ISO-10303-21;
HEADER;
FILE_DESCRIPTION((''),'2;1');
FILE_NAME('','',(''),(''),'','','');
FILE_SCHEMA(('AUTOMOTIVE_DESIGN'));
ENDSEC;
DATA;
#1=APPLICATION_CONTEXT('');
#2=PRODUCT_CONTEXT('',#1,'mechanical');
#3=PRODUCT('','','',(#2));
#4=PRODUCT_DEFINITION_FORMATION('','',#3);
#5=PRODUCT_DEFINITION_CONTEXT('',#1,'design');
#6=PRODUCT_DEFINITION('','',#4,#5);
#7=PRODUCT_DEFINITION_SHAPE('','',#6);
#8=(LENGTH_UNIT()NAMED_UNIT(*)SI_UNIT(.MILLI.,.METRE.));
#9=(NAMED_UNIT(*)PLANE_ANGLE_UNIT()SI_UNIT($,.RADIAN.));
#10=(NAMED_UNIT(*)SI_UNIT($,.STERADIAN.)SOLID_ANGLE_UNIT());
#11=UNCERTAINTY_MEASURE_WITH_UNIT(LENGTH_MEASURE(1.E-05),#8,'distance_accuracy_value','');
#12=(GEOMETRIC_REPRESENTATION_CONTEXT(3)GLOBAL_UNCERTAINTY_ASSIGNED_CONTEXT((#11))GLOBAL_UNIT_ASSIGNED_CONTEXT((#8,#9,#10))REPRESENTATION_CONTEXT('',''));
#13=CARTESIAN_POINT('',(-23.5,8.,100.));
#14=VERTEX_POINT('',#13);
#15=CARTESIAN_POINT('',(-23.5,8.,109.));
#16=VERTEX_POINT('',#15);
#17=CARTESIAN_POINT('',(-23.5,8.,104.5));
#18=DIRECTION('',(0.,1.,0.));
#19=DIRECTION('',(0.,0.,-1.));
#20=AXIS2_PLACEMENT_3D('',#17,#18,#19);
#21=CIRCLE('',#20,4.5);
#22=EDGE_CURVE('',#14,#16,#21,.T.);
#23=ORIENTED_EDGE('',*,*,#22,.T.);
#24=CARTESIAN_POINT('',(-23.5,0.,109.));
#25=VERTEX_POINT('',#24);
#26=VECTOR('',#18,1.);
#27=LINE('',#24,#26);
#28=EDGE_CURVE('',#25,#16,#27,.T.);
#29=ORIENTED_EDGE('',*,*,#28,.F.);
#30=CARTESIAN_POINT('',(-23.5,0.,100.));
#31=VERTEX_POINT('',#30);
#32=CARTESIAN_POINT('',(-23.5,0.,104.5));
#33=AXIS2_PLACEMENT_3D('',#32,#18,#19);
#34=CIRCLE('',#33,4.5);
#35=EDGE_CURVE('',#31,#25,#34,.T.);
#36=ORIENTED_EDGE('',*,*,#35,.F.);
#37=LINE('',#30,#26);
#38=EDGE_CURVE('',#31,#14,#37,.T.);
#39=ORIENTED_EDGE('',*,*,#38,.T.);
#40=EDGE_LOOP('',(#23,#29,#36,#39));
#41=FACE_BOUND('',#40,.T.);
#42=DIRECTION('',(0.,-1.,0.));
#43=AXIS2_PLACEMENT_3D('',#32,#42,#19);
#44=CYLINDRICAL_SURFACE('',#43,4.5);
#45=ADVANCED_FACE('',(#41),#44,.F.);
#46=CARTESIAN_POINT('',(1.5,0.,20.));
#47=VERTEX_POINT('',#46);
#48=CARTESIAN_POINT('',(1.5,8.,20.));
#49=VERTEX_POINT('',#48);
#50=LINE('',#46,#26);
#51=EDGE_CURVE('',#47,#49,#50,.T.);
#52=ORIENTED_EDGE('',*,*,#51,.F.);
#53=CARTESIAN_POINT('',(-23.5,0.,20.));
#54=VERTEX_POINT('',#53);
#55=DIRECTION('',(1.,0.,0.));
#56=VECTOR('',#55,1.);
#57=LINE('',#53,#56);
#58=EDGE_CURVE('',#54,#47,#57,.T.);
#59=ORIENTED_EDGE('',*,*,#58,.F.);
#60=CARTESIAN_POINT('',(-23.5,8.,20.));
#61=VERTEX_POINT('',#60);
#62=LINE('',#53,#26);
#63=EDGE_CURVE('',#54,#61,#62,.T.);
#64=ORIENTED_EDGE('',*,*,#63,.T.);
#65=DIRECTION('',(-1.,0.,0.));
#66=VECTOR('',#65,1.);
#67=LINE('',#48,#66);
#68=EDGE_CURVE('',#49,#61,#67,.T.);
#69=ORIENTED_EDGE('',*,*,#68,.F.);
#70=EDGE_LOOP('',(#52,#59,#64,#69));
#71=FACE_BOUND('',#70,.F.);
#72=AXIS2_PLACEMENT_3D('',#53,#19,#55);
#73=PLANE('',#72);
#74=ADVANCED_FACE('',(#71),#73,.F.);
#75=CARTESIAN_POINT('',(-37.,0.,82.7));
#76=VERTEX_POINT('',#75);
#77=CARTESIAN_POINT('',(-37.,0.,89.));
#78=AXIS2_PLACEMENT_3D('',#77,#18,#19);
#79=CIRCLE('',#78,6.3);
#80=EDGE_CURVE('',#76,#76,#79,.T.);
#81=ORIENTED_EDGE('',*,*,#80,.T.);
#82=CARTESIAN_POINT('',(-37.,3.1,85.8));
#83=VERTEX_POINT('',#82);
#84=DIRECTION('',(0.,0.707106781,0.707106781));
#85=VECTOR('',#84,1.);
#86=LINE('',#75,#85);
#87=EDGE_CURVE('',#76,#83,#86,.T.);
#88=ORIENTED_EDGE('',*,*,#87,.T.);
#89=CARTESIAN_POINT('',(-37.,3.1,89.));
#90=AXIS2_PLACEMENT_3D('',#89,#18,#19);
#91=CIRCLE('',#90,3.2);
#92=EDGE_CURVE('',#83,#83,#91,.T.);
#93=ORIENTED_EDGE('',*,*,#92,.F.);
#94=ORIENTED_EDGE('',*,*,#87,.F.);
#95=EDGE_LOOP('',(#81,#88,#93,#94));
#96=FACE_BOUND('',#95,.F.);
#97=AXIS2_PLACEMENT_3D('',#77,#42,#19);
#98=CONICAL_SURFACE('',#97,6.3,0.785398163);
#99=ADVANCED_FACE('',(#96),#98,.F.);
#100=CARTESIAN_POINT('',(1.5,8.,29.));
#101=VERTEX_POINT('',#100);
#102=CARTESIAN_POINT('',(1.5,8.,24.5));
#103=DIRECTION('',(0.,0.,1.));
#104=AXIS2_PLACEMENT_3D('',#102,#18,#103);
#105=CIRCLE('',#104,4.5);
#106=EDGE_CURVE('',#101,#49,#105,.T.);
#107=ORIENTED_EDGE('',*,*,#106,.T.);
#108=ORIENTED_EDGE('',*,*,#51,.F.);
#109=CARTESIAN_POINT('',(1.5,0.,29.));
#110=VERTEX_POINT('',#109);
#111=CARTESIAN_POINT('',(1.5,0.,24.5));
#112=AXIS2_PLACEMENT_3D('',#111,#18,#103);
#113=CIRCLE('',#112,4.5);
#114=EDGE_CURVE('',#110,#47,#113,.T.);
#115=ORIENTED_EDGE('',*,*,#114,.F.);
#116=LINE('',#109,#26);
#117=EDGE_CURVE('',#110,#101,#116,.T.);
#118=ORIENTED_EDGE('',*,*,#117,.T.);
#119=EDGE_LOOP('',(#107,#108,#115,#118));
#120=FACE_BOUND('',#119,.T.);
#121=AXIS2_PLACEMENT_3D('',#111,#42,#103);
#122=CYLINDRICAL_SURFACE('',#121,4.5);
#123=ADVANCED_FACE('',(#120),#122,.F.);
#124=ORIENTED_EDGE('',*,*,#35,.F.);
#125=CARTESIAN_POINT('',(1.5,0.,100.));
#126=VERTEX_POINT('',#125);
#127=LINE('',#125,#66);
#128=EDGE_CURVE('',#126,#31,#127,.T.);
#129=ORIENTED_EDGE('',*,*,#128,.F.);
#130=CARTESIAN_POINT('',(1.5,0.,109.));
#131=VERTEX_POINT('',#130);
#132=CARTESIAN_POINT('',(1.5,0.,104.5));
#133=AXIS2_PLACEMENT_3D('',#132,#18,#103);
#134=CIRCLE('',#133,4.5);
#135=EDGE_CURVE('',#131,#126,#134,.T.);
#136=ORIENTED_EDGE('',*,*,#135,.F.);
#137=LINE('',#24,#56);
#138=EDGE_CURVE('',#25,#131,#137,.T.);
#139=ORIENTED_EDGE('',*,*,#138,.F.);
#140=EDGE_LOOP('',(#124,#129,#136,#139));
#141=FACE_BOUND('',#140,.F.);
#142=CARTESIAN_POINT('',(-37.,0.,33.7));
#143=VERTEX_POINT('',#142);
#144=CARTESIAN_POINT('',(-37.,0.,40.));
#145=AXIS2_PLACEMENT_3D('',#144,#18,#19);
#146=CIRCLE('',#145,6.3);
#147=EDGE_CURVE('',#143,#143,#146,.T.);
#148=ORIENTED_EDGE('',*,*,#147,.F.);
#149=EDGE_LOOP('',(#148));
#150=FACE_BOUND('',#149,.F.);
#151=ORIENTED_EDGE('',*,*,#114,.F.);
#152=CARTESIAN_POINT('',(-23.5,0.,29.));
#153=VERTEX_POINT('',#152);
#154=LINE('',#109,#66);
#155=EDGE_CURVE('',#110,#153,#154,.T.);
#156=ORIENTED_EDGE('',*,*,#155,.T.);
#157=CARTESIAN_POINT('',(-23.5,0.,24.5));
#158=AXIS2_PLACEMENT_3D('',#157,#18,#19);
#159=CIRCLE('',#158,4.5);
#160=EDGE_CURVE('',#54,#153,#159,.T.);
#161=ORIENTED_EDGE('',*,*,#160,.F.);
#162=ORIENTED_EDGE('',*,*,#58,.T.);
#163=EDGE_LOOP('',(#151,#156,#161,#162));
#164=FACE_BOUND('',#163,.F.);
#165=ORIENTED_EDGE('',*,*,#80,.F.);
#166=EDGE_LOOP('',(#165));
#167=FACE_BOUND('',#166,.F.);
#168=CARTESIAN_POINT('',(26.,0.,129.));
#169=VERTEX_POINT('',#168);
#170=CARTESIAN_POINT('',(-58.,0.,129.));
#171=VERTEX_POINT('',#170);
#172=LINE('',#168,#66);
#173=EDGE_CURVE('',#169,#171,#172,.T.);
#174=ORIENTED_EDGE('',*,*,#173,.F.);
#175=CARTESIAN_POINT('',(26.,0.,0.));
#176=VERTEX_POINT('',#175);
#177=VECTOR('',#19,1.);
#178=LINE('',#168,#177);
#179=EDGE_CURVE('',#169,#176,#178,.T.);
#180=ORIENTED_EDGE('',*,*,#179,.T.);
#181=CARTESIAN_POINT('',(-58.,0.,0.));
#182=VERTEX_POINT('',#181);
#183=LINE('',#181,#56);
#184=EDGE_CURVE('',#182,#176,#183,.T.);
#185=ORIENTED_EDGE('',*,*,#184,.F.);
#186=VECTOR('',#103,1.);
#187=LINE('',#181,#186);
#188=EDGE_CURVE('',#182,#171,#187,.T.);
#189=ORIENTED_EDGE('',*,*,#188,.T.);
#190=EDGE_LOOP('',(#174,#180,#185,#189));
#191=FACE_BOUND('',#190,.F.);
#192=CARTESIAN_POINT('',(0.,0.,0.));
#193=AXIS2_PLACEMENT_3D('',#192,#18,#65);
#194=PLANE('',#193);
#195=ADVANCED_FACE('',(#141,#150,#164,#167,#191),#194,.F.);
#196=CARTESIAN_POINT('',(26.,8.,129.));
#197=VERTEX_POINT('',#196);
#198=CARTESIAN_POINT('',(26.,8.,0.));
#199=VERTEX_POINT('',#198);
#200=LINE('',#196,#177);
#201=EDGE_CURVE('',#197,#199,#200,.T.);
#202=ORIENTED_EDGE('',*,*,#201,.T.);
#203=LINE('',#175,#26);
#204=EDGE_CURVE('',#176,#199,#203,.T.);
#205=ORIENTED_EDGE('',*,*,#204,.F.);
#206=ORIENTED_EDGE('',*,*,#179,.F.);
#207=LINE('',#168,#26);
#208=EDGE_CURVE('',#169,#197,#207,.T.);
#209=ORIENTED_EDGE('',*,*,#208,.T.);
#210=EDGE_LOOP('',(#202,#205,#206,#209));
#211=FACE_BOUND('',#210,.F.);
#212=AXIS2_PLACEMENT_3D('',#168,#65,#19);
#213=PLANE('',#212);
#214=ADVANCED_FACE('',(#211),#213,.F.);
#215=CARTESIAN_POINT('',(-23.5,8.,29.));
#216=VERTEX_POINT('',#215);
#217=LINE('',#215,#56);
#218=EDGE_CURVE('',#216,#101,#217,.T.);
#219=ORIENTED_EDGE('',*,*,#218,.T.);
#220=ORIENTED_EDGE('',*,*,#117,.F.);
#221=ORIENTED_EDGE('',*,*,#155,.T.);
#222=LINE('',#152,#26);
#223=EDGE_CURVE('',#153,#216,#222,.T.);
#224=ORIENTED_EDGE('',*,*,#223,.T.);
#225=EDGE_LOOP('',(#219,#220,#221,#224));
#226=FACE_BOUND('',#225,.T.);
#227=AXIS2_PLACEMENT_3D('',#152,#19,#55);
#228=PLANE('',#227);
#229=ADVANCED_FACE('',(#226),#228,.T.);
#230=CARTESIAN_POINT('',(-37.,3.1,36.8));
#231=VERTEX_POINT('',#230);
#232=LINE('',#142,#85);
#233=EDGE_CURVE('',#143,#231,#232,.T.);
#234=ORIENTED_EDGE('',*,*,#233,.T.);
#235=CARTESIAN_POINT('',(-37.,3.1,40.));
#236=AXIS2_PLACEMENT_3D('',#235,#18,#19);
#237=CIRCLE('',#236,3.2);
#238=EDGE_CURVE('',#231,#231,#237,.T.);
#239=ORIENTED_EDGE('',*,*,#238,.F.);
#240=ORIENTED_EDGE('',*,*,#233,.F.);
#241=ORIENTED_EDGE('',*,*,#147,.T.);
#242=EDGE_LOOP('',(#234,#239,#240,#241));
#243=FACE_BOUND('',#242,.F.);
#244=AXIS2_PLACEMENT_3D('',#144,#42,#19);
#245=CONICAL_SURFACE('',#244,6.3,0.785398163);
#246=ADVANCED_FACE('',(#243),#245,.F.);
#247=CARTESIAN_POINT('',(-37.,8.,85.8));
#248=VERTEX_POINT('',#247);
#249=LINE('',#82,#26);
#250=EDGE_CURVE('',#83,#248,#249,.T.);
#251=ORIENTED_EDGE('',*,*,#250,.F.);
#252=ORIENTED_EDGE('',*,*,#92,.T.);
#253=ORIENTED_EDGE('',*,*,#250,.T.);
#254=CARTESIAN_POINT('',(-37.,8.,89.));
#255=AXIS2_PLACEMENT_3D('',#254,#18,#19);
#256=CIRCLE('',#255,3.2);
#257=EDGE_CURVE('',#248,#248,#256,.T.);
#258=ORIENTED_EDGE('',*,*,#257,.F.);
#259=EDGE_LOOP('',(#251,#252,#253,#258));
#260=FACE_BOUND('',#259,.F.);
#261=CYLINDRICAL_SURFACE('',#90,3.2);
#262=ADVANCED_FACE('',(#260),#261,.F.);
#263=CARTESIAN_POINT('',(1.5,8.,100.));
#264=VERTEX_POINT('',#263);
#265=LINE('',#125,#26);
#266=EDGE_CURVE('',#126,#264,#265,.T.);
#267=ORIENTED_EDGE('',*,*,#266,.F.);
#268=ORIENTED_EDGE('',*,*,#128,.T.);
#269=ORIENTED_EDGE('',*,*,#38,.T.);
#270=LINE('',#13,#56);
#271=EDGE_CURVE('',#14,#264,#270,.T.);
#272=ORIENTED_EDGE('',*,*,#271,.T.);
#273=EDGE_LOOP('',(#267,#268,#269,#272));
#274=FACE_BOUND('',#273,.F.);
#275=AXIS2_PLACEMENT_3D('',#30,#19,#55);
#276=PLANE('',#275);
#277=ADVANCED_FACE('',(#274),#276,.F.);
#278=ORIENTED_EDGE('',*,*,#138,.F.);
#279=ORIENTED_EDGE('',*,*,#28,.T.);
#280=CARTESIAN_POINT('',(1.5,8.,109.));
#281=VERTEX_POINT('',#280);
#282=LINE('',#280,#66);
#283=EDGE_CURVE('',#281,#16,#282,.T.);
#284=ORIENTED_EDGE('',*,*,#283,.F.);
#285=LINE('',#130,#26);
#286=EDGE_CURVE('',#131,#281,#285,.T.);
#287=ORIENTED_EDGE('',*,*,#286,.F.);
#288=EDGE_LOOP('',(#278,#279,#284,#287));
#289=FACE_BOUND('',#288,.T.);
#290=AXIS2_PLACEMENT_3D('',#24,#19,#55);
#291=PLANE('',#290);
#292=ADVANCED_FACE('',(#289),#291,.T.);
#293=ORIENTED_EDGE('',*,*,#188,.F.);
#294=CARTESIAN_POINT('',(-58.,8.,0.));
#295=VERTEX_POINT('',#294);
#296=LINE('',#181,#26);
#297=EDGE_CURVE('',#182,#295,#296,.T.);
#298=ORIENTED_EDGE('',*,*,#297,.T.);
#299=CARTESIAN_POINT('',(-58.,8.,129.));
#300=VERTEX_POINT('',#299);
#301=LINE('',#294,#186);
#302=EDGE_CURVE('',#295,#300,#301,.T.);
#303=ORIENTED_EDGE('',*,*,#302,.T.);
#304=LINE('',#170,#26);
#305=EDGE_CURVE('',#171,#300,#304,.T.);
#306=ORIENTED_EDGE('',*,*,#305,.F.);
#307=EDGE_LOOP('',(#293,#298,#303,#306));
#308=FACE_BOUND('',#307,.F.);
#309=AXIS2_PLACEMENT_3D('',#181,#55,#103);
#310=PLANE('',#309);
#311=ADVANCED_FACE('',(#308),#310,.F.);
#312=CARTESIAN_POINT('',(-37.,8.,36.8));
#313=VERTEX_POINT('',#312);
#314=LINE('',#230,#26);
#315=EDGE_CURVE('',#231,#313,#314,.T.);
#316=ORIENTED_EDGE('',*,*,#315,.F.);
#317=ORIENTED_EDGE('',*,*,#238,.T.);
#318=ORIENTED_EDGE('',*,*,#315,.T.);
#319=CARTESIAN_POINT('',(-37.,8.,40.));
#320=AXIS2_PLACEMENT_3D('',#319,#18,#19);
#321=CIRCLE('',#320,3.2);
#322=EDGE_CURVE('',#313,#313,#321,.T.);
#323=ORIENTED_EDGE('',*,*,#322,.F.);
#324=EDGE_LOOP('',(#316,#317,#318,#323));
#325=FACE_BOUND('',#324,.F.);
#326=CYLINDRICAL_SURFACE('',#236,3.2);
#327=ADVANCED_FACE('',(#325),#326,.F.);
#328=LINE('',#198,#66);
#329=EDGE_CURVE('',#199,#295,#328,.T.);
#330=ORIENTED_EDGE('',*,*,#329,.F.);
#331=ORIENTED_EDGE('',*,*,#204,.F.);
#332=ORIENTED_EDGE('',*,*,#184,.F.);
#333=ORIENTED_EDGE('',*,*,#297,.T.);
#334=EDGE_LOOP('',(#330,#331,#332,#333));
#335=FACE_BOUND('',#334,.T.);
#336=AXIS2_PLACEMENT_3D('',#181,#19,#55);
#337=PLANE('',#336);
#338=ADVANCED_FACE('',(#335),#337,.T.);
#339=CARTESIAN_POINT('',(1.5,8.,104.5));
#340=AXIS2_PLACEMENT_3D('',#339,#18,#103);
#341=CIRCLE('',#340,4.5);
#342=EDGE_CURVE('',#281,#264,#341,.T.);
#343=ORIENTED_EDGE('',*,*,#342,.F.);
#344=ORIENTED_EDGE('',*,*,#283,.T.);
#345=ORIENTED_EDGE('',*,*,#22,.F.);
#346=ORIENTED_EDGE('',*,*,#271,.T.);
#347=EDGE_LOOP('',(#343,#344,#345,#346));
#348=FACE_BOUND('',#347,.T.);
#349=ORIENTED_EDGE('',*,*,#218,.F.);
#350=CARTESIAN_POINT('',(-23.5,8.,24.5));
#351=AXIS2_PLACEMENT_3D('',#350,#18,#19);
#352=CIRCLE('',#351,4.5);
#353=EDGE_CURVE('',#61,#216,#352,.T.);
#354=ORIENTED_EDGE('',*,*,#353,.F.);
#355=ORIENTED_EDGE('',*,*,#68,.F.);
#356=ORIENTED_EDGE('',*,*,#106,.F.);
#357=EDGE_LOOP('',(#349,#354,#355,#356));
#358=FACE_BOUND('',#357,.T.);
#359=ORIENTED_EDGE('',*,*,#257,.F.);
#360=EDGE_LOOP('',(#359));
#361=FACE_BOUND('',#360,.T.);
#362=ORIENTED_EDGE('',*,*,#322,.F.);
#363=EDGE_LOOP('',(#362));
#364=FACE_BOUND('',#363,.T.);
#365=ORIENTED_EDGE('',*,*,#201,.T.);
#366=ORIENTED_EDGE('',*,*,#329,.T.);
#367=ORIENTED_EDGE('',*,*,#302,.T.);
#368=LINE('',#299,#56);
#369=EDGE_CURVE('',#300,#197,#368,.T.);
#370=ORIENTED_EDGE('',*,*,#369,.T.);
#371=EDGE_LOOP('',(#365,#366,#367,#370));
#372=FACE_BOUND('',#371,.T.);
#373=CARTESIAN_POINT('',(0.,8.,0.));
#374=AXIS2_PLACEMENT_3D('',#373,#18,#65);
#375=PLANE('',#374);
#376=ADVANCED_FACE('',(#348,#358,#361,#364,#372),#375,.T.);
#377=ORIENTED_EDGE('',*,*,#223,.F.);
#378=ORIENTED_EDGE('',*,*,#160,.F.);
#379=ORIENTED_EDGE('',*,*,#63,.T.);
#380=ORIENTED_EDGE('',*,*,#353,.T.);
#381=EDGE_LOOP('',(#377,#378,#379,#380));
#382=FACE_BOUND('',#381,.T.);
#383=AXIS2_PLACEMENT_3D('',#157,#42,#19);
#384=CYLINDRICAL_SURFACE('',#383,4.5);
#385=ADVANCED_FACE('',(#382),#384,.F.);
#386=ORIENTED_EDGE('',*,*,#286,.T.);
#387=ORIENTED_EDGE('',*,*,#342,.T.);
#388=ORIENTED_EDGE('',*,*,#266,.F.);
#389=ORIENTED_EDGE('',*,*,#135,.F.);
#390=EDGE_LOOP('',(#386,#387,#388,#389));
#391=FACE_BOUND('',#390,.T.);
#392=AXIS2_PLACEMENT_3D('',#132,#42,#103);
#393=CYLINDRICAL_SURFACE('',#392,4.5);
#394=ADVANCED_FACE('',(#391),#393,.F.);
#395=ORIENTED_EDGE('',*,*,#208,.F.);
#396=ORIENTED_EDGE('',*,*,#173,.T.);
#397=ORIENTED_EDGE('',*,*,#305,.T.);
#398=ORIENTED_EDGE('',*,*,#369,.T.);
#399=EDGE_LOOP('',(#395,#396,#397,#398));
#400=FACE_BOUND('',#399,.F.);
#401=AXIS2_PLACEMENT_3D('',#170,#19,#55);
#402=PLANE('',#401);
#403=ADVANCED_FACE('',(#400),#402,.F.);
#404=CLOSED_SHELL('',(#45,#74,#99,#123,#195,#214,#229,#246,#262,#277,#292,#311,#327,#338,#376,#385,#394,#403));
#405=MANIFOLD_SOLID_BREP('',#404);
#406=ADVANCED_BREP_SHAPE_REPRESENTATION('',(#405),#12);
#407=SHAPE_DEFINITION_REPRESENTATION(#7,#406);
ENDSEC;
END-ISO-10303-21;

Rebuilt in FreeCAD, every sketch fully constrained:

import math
import FreeCAD as App
import Part
import Sketcher

V = App.Vector
Q = App.Units.Quantity

doc = App.newDocument("Part")
body = doc.addObject("PartDesign::Body", "Body")

# Sketch on XZ plane
sketch1 = doc.addObject("Sketcher::SketchObject", "Sketch")
body.addObject(sketch1)
sketch1.AttachmentSupport = (doc.XZ_Plane, [""])
sketch1.MapMode = "FlatFace"
sketch1.addGeometry(Part.LineSegment(V(-58, 129, 0), V(26, 129, 0)), False)
sketch1.addGeometry(Part.LineSegment(V(26, 129, 0), V(26, 0, 0)), False)
sketch1.addGeometry(Part.LineSegment(V(26, 0, 0), V(-58, 0, 0)), False)
sketch1.addGeometry(Part.LineSegment(V(-58, 0, 0), V(-58, 129, 0)), False)
sketch1.addGeometry(Part.ArcOfCircle(Part.Circle(V(-23.5, 24.5, 0), V(0, 0, 1), 4.5), math.radians(90), math.radians(270)), False)
sketch1.addGeometry(Part.LineSegment(V(-23.5, 20, 0), V(1.5, 20, 0)), False)
sketch1.addGeometry(Part.ArcOfCircle(Part.Circle(V(1.5, 24.5, 0), V(0, 0, 1), 4.5), math.radians(-90), math.radians(90)), False)
sketch1.addGeometry(Part.LineSegment(V(1.5, 29, 0), V(-23.5, 29, 0)), False)
sketch1.addGeometry(Part.LineSegment(V(-23.5, 100, 0), V(1.5, 100, 0)), False)
sketch1.addGeometry(Part.ArcOfCircle(Part.Circle(V(1.5, 104.5, 0), V(0, 0, 1), 4.5), math.radians(-90), math.radians(90)), False)
sketch1.addGeometry(Part.LineSegment(V(1.5, 109, 0), V(-23.5, 109, 0)), False)
sketch1.addGeometry(Part.ArcOfCircle(Part.Circle(V(-23.5, 104.5, 0), V(0, 0, 1), 4.5), math.radians(90), math.radians(270)), False)
sketch1.addConstraint(Sketcher.Constraint("Coincident", 0, 2, 1, 1))
sketch1.addConstraint(Sketcher.Constraint("Coincident", 1, 2, 2, 1))
sketch1.addConstraint(Sketcher.Constraint("Coincident", 2, 2, 3, 1))
sketch1.addConstraint(Sketcher.Constraint("Coincident", 3, 2, 0, 1))
sketch1.addConstraint(Sketcher.Constraint("Tangent", 4, 2, 5, 1))
sketch1.addConstraint(Sketcher.Constraint("Tangent", 5, 2, 6, 1))
sketch1.addConstraint(Sketcher.Constraint("Tangent", 6, 2, 7, 1))
sketch1.addConstraint(Sketcher.Constraint("Tangent", 7, 2, 4, 1))
sketch1.addConstraint(Sketcher.Constraint("Tangent", 8, 2, 9, 1))
sketch1.addConstraint(Sketcher.Constraint("Tangent", 9, 2, 10, 1))
sketch1.addConstraint(Sketcher.Constraint("Tangent", 10, 2, 11, 1))
sketch1.addConstraint(Sketcher.Constraint("Tangent", 11, 2, 8, 1))
sketch1.addConstraint(Sketcher.Constraint("Horizontal", 0))
sketch1.addConstraint(Sketcher.Constraint("Vertical", 1))
sketch1.addConstraint(Sketcher.Constraint("Horizontal", 2))
sketch1.addConstraint(Sketcher.Constraint("Vertical", 3))
sketch1.addConstraint(Sketcher.Constraint("Horizontal", 5))
sketch1.addConstraint(Sketcher.Constraint("Horizontal", 7))
sketch1.addConstraint(Sketcher.Constraint("Horizontal", 8))
sketch1.addConstraint(Sketcher.Constraint("Horizontal", 10))
sketch1.addConstraint(Sketcher.Constraint("Equal", 6, 9))
sketch1.addConstraint(Sketcher.Constraint("PointOnObject", 1, 2, -1))
sketch1.addConstraint(Sketcher.Constraint("Vertical", 6, 3, 9, 3))
sketch1.addConstraint(Sketcher.Constraint("Vertical", 4, 3, 11, 3))
sketch1.addConstraint(Sketcher.Constraint("DistanceX", -1, 1, 0, 2, Q("26 mm")))
sketch1.addConstraint(Sketcher.Constraint("Radius", 4, Q("4.5 mm")))
sketch1.addConstraint(Sketcher.Constraint("DistanceX", 0, 1, 0, 2, Q("84 mm")))
sketch1.addConstraint(Sketcher.Constraint("DistanceX", 5, 1, 5, 2, Q("25 mm")))
sketch1.addConstraint(Sketcher.Constraint("DistanceY", 1, 2, 1, 1, Q("129 mm")))
sketch1.addConstraint(Sketcher.Constraint("DistanceY", -1, 1, 4, 2, Q("20 mm")))
sketch1.addConstraint(Sketcher.Constraint("DistanceY", -1, 1, 8, 2, Q("100 mm")))
sketch1.addConstraint(Sketcher.Constraint("DistanceX", 4, 3, -1, 1, Q("23.5 mm")))
pad1 = doc.addObject("PartDesign::Pad", "Pad")
body.addObject(pad1)
pad1.Profile = sketch1
pad1.Length = 8
pad1.Reversed = True

# Sketch on XZ plane
sketch2 = doc.addObject("Sketcher::SketchObject", "Sketch001")
body.addObject(sketch2)
sketch2.AttachmentSupport = (doc.XZ_Plane, [""])
sketch2.MapMode = "FlatFace"
sketch2.addGeometry(Part.Circle(V(-37, 89, 0), V(0, 0, 1), 3.2), False)
sketch2.addGeometry(Part.Circle(V(-37, 40, 0), V(0, 0, 1), 3.2), False)
sketch2.addConstraint(Sketcher.Constraint("Equal", 0, 1))
sketch2.addConstraint(Sketcher.Constraint("Vertical", 0, 3, 1, 3))
sketch2.addConstraint(Sketcher.Constraint("Diameter", 0, Q("6.4 mm")))
sketch2.addConstraint(Sketcher.Constraint("DistanceX", 0, 3, -1, 1, Q("37 mm")))
sketch2.addConstraint(Sketcher.Constraint("DistanceY", -1, 1, 0, 3, Q("89 mm")))
sketch2.addConstraint(Sketcher.Constraint("DistanceY", -1, 1, 1, 3, Q("40 mm")))
doc.recompute()
hole = doc.addObject("PartDesign::Hole", "Hole")
body.addObject(hole)
hole.Profile = sketch2
hole.ThreadType = "None"
hole.Diameter = 6.4
hole.DepthType = "Dimension"
hole.Depth = 20
hole.DrillPoint = "Flat"
hole.HoleCutType = "Countersink"
hole.HoleCutDiameter = 12.6
hole.HoleCutCountersinkAngle = 90

doc.recompute()
